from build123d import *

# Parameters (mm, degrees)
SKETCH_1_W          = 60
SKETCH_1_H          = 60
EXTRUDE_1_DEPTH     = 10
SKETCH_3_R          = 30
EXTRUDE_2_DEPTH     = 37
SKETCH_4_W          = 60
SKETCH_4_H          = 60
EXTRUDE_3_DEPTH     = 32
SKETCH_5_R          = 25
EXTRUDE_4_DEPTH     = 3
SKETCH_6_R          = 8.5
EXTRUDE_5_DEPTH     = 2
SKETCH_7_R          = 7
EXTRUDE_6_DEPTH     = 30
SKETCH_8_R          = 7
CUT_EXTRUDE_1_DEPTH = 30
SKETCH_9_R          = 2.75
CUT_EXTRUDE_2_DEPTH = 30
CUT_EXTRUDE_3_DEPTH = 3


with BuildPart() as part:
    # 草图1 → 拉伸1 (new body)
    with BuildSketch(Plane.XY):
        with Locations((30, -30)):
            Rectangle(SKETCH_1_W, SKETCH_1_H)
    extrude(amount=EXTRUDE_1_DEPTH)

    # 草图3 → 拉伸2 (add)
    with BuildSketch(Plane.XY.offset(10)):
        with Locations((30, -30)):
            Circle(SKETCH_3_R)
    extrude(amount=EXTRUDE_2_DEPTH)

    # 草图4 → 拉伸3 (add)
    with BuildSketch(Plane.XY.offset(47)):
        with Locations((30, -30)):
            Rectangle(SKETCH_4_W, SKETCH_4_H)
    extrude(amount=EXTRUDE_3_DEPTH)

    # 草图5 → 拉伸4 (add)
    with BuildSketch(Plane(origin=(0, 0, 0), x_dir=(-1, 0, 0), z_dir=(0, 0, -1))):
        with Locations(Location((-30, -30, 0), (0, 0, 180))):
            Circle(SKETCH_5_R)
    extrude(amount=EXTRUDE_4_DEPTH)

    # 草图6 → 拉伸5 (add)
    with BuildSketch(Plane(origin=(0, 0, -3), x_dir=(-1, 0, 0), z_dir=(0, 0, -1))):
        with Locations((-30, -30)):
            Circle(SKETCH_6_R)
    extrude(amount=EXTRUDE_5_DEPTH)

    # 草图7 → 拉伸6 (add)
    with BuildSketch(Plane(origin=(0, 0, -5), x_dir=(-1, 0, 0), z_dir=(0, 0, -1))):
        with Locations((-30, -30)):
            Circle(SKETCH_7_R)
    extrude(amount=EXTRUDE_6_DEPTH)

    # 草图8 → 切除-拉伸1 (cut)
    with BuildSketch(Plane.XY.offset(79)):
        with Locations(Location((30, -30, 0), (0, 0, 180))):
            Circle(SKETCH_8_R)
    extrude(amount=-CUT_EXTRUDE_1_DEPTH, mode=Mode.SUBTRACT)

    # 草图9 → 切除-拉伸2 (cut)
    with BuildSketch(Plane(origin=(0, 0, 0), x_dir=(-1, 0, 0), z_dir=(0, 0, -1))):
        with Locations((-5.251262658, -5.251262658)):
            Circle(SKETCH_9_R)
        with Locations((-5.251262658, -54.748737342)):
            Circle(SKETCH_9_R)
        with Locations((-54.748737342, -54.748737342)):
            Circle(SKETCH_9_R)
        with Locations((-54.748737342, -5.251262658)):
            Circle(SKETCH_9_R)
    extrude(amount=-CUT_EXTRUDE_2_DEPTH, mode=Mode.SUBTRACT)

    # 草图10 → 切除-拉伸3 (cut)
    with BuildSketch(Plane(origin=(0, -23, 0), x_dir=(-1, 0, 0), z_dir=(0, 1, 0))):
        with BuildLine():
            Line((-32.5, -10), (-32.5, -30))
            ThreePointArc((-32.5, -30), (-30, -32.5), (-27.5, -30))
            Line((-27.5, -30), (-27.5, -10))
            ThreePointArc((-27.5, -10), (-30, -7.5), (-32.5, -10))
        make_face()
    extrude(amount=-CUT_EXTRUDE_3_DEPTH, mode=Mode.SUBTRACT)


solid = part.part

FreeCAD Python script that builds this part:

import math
import FreeCAD as App
import Part
import Sketcher
Q = App.Units.Quantity

doc = App.newDocument("Part")
body = doc.addObject("PartDesign::Body", "Body")

# Sketch on XY plane
sketch1 = body.newObject("Sketcher::SketchObject", "Sketch")
sketch1.AttachmentSupport = (doc.getObject("XY_Plane"), [""])
sketch1.MapMode = "FlatFace"
sketch1.addGeometry([
    Part.LineSegment(App.Vector(0, 0, 0), App.Vector(0, -60, 0)),
    Part.LineSegment(App.Vector(0, -60, 0), App.Vector(60, -60, 0)),
    Part.LineSegment(App.Vector(60, -60, 0), App.Vector(60, 0, 0)),
    Part.LineSegment(App.Vector(60, 0, 0), App.Vector(0, 0, 0)),
], False)
sketch1.addConstraint([
    Sketcher.Constraint("Coincident", 0, 2, 1, 1),
    Sketcher.Constraint("Coincident", 1, 2, 2, 1),
    Sketcher.Constraint("Coincident", 2, 2, 3, 1),
    Sketcher.Constraint("Coincident", 3, 2, 0, 1),
    Sketcher.Constraint("Vertical", 0),
    Sketcher.Constraint("Horizontal", 1),
    Sketcher.Constraint("Vertical", 2),
    Sketcher.Constraint("Horizontal", 3),
    Sketcher.Constraint("Coincident", 3, 2, -1, 1),
    Sketcher.Constraint("Equal", 3, 0),
    Sketcher.Constraint("DistanceX", 1, 1, 1, 2, Q("60 mm")),
])
pad1 = body.newObject("PartDesign::Pad", "Pad")
pad1.Profile = sketch1
pad1.Length = 10

# Sketch on XY plane
sketch2 = body.newObject("Sketcher::SketchObject", "Sketch001")
sketch2.AttachmentSupport = (doc.getObject("XY_Plane"), [""])
sketch2.MapMode = "FlatFace"
sketch2.AttachmentOffset = App.Placement(App.Vector(0, 0, 10), App.Rotation())
sketch2.addGeometry(Part.Circle(App.Vector(30, -30, 0), App.Vector(0, 0, 1), 30), False)
sketch2.addConstraint([
    Sketcher.Constraint("Diameter", 0, Q("60 mm")),
    Sketcher.Constraint("DistanceX", -1, 1, 0, 3, Q("30 mm")),
    Sketcher.Constraint("DistanceY", 0, 3, -1, 1, Q("30 mm")),
])
pad2 = body.newObject("PartDesign::Pad", "Pad001")
pad2.Profile = sketch2
pad2.Length = 37

# Sketch on XY plane
sketch3 = body.newObject("Sketcher::SketchObject", "Sketch002")
sketch3.AttachmentSupport = (doc.getObject("XY_Plane"), [""])
sketch3.MapMode = "FlatFace"
sketch3.AttachmentOffset = App.Placement(App.Vector(0, 0, 47), App.Rotation())
sketch3.addGeometry([
    Part.LineSegment(App.Vector(0, 0, 0), App.Vector(0, -60, 0)),
    Part.LineSegment(App.Vector(0, -60, 0), App.Vector(60, -60, 0)),
    Part.LineSegment(App.Vector(60, -60, 0), App.Vector(60, 0, 0)),
    Part.LineSegment(App.Vector(60, 0, 0), App.Vector(0, 0, 0)),
], False)
sketch3.addConstraint([
    Sketcher.Constraint("Coincident", 0, 2, 1, 1),
    Sketcher.Constraint("Coincident", 1, 2, 2, 1),
    Sketcher.Constraint("Coincident", 2, 2, 3, 1),
    Sketcher.Constraint("Coincident", 3, 2, 0, 1),
    Sketcher.Constraint("Vertical", 0),
    Sketcher.Constraint("Horizontal", 1),
    Sketcher.Constraint("Vertical", 2),
    Sketcher.Constraint("Horizontal", 3),
    Sketcher.Constraint("Coincident", 3, 2, -1, 1),
    Sketcher.Constraint("Equal", 3, 0),
    Sketcher.Constraint("DistanceX", 1, 1, 1, 2, Q("60 mm")),
])
pad3 = body.newObject("PartDesign::Pad", "Pad002")
pad3.Profile = sketch3
pad3.Length = 32

# Sketch on XY plane
sketch4 = body.newObject("Sketcher::SketchObject", "Sketch003")
sketch4.AttachmentSupport = (doc.getObject("XY_Plane"), [""])
sketch4.MapMode = "FlatFace"
sketch4.addGeometry(Part.Circle(App.Vector(30, -30, 0), App.Vector(0, 0, 1), 25), False)
sketch4.addConstraint([
    Sketcher.Constraint("Diameter", 0, Q("50 mm")),
    Sketcher.Constraint("DistanceX", -1, 1, 0, 3, Q("30 mm")),
    Sketcher.Constraint("DistanceY", 0, 3, -1, 1, Q("30 mm")),
])
pad4 = body.newObject("PartDesign::Pad", "Pad003")
pad4.Profile = sketch4
pad4.Length = 3
pad4.Reversed = True

# Sketch on XY plane
sketch5 = body.newObject("Sketcher::SketchObject", "Sketch004")
sketch5.AttachmentSupport = (doc.getObject("XY_Plane"), [""])
sketch5.MapMode = "FlatFace"
sketch5.AttachmentOffset = App.Placement(App.Vector(0, 0, -3), App.Rotation())
sketch5.addGeometry(Part.Circle(App.Vector(30, -30, 0), App.Vector(0, 0, 1), 8.5), False)
sketch5.addConstraint([
    Sketcher.Constraint("Diameter", 0, Q("17 mm")),
    Sketcher.Constraint("DistanceX", -1, 1, 0, 3, Q("30 mm")),
    Sketcher.Constraint("DistanceY", 0, 3, -1, 1, Q("30 mm")),
])
pad5 = body.newObject("PartDesign::Pad", "Pad004")
pad5.Profile = sketch5
pad5.Length = 2
pad5.Reversed = True

# Sketch on XY plane
sketch6 = body.newObject("Sketcher::SketchObject", "Sketch005")
sketch6.AttachmentSupport = (doc.getObject("XY_Plane"), [""])
sketch6.MapMode = "FlatFace"
sketch6.AttachmentOffset = App.Placement(App.Vector(0, 0, -5), App.Rotation())
sketch6.addGeometry(Part.Circle(App.Vector(30, -30, 0), App.Vector(0, 0, 1), 7), False)
sketch6.addConstraint([
    Sketcher.Constraint("Diameter", 0, Q("14 mm")),
    Sketcher.Constraint("DistanceX", -1, 1, 0, 3, Q("30 mm")),
    Sketcher.Constraint("DistanceY", 0, 3, -1, 1, Q("30 mm")),
])
pad6 = body.newObject("PartDesign::Pad", "Pad005")
pad6.Profile = sketch6
pad6.Length = 30
pad6.Reversed = True

# Sketch on XY plane
sketch7 = body.newObject("Sketcher::SketchObject", "Sketch006")
sketch7.AttachmentSupport = (doc.getObject("XY_Plane"), [""])
sketch7.MapMode = "FlatFace"
sketch7.AttachmentOffset = App.Placement(App.Vector(0, 0, 79), App.Rotation())
sketch7.addGeometry(Part.Circle(App.Vector(30, -30, 0), App.Vector(0, 0, 1), 7), False)
sketch7.addConstraint([
    Sketcher.Constraint("Diameter", 0, Q("14 mm")),
    Sketcher.Constraint("DistanceX", -1, 1, 0, 3, Q("30 mm")),
    Sketcher.Constraint("DistanceY", 0, 3, -1, 1, Q("30 mm")),
])
pocket1 = body.newObject("PartDesign::Pocket", "Pocket")
pocket1.Profile = sketch7
pocket1.Length = 30

# Sketch on XY plane
sketch8 = body.newObject("Sketcher::SketchObject", "Sketch007")
sketch8.AttachmentSupport = (doc.getObject("XY_Plane"), [""])
sketch8.MapMode = "FlatFace"
sketch8.addGeometry([
    Part.Circle(App.Vector(5.251263, -5.251263, 0), App.Vector(0, 0, 1), 2.75),
    Part.Circle(App.Vector(5.251263, -54.748737, 0), App.Vector(0, 0, 1), 2.75),
    Part.Circle(App.Vector(54.748737, -54.748737, 0), App.Vector(0, 0, 1), 2.75),
    Part.Circle(App.Vector(54.748737, -5.251263, 0), App.Vector(0, 0, 1), 2.75),
], False)
sketch8.addConstraint([
    Sketcher.Constraint("Equal", 0, 1),
    Sketcher.Constraint("Equal", 1, 2),
    Sketcher.Constraint("Equal", 2, 3),
    Sketcher.Constraint("Horizontal", 1, 3, 2, 3),
    Sketcher.Constraint("Horizontal", 0, 3, 3, 3),
    Sketcher.Constraint("Vertical", 0, 3, 1, 3),
    Sketcher.Constraint("Vertical", 2, 3, 3, 3),
    Sketcher.Constraint("Diameter", 0, Q("5.5 mm")),
    Sketcher.Constraint("DistanceX", -1, 1, 0, 3, Q("5.251263 mm")),
    Sketcher.Constraint("DistanceY", 0, 3, -1, 1, Q("5.251263 mm")),
    Sketcher.Constraint("DistanceY", 1, 3, -1, 1, Q("54.748737 mm")),
    Sketcher.Constraint("DistanceX", -1, 1, 2, 3, Q("54.748737 mm")),
])
pocket2 = body.newObject("PartDesign::Pocket", "Pocket001")
pocket2.Profile = sketch8
pocket2.Length = 30
pocket2.Reversed = True

# Sketch on XZ plane
sketch9 = body.newObject("Sketcher::SketchObject", "Sketch008")
sketch9.AttachmentSupport = (doc.getObject("XZ_Plane"), [""])
sketch9.MapMode = "FlatFace"
sketch9.AttachmentOffset = App.Placement(App.Vector(0, 0, 23), App.Rotation())
sketch9.addGeometry([
    Part.LineSegment(App.Vector(32.5, -10, 0), App.Vector(32.5, -30, 0)),
    Part.ArcOfCircle(Part.Circle(App.Vector(30, -30, 0), App.Vector(0, 0, 1), 2.5), math.radians(180), math.radians(360)),
    Part.LineSegment(App.Vector(27.5, -30, 0), App.Vector(27.5, -10, 0)),
    Part.ArcOfCircle(Part.Circle(App.Vector(30, -10, 0), App.Vector(0, 0, 1), 2.5), math.radians(0), math.radians(180)),
], False)
sketch9.addConstraint([
    Sketcher.Constraint("Tangent", 0, 2, 1, 2),
    Sketcher.Constraint("Tangent", 1, 1, 2, 1),
    Sketcher.Constraint("Tangent", 2, 2, 3, 2),
    Sketcher.Constraint("Tangent", 3, 1, 0, 1),
    Sketcher.Constraint("Vertical", 0),
    Sketcher.Constraint("Vertical", 2),
    Sketcher.Constraint("Radius", 1, Q("2.5 mm")),
    Sketcher.Constraint("DistanceY", 0, 2, 0, 1, Q("20 mm")),
    Sketcher.Constraint("DistanceX", -1, 1, 1, 3, Q("30 mm")),
    Sketcher.Constraint("DistanceY", 1, 3, -1, 1, Q("30 mm")),
])
pocket3 = body.newObject("PartDesign::Pocket", "Pocket002")
pocket3.Profile = sketch9
pocket3.Length = 3
pocket3.Reversed = True

doc.recompute()
